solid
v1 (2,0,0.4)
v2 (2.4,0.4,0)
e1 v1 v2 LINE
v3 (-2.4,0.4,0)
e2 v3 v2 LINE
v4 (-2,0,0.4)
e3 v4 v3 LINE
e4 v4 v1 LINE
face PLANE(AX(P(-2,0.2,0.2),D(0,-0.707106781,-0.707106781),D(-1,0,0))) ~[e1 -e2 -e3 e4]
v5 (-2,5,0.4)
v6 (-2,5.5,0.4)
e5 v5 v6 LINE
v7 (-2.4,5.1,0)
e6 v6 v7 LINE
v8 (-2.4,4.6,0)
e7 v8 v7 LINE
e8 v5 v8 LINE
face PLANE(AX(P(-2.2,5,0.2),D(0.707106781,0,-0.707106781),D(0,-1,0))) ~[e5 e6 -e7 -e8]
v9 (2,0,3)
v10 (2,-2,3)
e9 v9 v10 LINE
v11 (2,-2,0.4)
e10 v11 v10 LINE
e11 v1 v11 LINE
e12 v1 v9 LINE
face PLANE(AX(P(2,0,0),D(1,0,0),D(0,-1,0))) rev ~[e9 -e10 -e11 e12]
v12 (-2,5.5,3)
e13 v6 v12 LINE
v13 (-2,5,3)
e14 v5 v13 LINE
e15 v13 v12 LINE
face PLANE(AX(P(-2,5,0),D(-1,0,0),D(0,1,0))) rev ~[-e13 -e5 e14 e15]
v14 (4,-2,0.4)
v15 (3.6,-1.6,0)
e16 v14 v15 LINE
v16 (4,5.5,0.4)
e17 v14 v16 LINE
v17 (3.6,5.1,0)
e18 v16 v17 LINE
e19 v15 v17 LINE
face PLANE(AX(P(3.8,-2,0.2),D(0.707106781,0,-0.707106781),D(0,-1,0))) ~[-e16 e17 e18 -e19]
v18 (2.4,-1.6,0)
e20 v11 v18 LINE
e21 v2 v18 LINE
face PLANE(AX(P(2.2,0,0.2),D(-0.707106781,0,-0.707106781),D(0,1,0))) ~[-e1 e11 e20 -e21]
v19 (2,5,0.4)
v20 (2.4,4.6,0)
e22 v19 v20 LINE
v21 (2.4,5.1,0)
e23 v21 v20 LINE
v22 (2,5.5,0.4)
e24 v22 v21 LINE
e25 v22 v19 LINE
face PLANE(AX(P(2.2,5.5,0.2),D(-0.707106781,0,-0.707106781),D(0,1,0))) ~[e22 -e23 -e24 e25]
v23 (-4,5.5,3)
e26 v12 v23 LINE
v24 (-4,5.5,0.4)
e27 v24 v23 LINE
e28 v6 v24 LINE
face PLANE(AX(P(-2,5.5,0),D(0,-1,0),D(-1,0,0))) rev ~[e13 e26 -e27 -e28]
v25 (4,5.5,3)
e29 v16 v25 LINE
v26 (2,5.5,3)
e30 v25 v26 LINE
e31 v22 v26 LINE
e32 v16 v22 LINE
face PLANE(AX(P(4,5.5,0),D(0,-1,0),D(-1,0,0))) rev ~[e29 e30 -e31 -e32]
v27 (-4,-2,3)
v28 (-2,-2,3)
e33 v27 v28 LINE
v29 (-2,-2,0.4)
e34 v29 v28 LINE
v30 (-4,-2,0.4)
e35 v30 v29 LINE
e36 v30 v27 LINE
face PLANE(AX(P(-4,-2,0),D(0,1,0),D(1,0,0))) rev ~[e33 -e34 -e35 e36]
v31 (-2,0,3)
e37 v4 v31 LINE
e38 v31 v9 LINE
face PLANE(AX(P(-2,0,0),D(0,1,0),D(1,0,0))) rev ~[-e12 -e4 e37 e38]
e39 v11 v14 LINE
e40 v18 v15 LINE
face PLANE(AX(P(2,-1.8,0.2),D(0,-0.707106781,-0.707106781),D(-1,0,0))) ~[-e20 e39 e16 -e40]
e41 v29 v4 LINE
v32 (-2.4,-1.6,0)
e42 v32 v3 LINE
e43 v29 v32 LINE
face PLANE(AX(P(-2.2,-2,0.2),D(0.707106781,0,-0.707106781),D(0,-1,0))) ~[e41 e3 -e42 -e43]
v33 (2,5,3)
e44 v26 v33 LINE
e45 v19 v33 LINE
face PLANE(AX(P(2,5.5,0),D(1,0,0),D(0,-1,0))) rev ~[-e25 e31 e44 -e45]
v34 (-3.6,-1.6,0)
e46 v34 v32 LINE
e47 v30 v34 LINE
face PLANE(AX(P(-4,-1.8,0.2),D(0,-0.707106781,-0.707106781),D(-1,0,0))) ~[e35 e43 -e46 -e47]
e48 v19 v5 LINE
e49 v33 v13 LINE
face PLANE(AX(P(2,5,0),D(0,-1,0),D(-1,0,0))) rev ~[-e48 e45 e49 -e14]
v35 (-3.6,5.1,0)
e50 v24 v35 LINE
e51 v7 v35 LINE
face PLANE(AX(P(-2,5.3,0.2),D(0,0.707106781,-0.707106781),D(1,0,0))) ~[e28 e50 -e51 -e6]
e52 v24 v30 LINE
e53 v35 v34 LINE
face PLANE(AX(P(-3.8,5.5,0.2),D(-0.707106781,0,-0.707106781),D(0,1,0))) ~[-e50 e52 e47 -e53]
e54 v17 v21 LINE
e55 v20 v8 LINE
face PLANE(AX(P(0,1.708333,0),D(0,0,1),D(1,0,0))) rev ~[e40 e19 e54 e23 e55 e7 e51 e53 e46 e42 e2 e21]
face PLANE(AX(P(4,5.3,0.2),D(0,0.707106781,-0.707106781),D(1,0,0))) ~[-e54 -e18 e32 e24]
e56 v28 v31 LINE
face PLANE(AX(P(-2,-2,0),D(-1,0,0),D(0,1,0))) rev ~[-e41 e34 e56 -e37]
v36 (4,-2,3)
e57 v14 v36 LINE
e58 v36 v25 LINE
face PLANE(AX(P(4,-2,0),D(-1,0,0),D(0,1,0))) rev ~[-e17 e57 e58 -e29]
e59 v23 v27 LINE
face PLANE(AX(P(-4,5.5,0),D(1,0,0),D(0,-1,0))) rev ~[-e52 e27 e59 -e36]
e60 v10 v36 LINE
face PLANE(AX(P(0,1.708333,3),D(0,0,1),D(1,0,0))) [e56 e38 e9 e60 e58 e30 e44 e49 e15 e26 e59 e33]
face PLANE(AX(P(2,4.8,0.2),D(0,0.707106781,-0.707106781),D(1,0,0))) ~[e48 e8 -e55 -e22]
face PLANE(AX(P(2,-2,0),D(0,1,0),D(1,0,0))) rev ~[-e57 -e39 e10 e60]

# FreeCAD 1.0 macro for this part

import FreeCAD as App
import Part
import Sketcher
from FreeCAD import Vector
Q = App.Units.Quantity


def edges_at(feature, points):
    """Names of the edges that pass closest to the given points."""
    edges = feature.Shape.Edges
    near = lambda p: min(range(len(edges)), key=lambda i: edges[i].distToShape(Part.Vertex(*p))[0])
    return sorted({f"Edge{near(p) + 1}" for p in points})

doc = App.newDocument("Part")
params = doc.addObject("Spreadsheet::Sheet", "Params")
for row, (alias, value) in enumerate([
    ("sketch1_width", "4 mm"),
    ("sketch1_width2", "2 mm"),
    ("sketch1_height", "7.5 mm"),
    ("sketch1_height2", "0.5 mm"),
    ("pad1_length", "3 mm"),
    ("chamfer_size", "0.4 mm"),
], start=1):
    params.set(f"A{row}", alias)
    params.set(f"B{row}", "=" + value)
    params.setAlias(f"B{row}", alias)

body = doc.addObject("PartDesign::Body", "Body")

# Sketch on XY plane
sketch1 = body.newObject("Sketcher::SketchObject", "Sketch")
sketch1.AttachmentSupport = (doc.getObject("XY_Plane"), [""])
sketch1.MapMode = "FlatFace"
sketch1.addGeometry([
    Part.LineSegment(Vector(-2, -2, 0), Vector(-2, 0, 0)),  # 0
    Part.LineSegment(Vector(-2, 0, 0), Vector(2, 0, 0)),  # 1
    Part.LineSegment(Vector(2, 0, 0), Vector(2, -2, 0)),  # 2
    Part.LineSegment(Vector(2, -2, 0), Vector(4, -2, 0)),  # 3
    Part.LineSegment(Vector(4, -2, 0), Vector(4, 5.5, 0)),  # 4
    Part.LineSegment(Vector(4, 5.5, 0), Vector(2, 5.5, 0)),  # 5
    Part.LineSegment(Vector(2, 5.5, 0), Vector(2, 5, 0)),  # 6
    Part.LineSegment(Vector(2, 5, 0), Vector(-2, 5, 0)),  # 7
    Part.LineSegment(Vector(-2, 5, 0), Vector(-2, 5.5, 0)),  # 8
    Part.LineSegment(Vector(-2, 5.5, 0), Vector(-4, 5.5, 0)),  # 9
    Part.LineSegment(Vector(-4, 5.5, 0), Vector(-4, -2, 0)),  # 10
    Part.LineSegment(Vector(-4, -2, 0), Vector(-2, -2, 0)),  # 11
], False)
sketch1.addConstraint([
    Sketcher.Constraint("Coincident", 0, 2, 1, 1),
    Sketcher.Constraint("Coincident", 1, 2, 2, 1),
    Sketcher.Constraint("Coincident", 2, 2, 3, 1),
    Sketcher.Constraint("Coincident", 3, 2, 4, 1),
    Sketcher.Constraint("Coincident", 4, 2, 5, 1),
    Sketcher.Constraint("Coincident", 5, 2, 6, 1),
    Sketcher.Constraint("Coincident", 6, 2, 7, 1),
    Sketcher.Constraint("Coincident", 7, 2, 8, 1),
    Sketcher.Constraint("Coincident", 8, 2, 9, 1),
    Sketcher.Constraint("Coincident", 9, 2, 10, 1),
    Sketcher.Constraint("Coincident", 10, 2, 11, 1),
    Sketcher.Constraint("Coincident", 11, 2, 0, 1),
    Sketcher.Constraint("Vertical", 0),
    Sketcher.Constraint("Horizontal", 1),
    Sketcher.Constraint("Vertical", 2),
    Sketcher.Constraint("Horizontal", 3),
    Sketcher.Constraint("Vertical", 4),
    Sketcher.Constraint("Horizontal", 5),
    Sketcher.Constraint("Vertical", 6),
    Sketcher.Constraint("Horizontal", 7),
    Sketcher.Constraint("Vertical", 8),
    Sketcher.Constraint("Horizontal", 9),
    Sketcher.Constraint("Vertical", 10),
    Sketcher.Constraint("Horizontal", 11),
    Sketcher.Constraint("Symmetric", 0, 2, 1, 2, -1, 1),
    Sketcher.Constraint("Symmetric", 5, 2, 8, 2, -2),
    Sketcher.Constraint("Symmetric", 3, 2, 10, 2, -2),
    Sketcher.Constraint("Vertical", 2, 2, 5, 2),
    Sketcher.Constraint("Equal", 11, 0),
    Sketcher.Constraint("DistanceX", 1, 1, 1, 2, Q("4 mm")),
    Sketcher.Constraint("DistanceX", 3, 1, 3, 2, Q("2 mm")),
    Sketcher.Constraint("DistanceY", 4, 1, 4, 2, Q("7.5 mm")),
    Sketcher.Constraint("DistanceY", 6, 2, 6, 1, Q("0.5 mm")),
])
sketch1.setExpression("Constraints[29]", "Params.sketch1_width")
sketch1.setExpression("Constraints[30]", "Params.sketch1_width2")
sketch1.setExpression("Constraints[31]", "Params.sketch1_height")
sketch1.setExpression("Constraints[32]", "Params.sketch1_height2")
pad1 = body.newObject("PartDesign::Pad", "Pad")
pad1.Profile = sketch1
pad1.setExpression("Length", "Params.pad1_length")
doc.recompute()

chamfer = body.newObject("PartDesign::Chamfer", "Chamfer")
chamfer.Base = (pad1, edges_at(pad1, [
    (-4, 1.75, 0),
    (-3, -2, 0),
    (-2, -1, 0),
    (0, 0, 0),
    (2, -1, 0),
    (3, -2, 0),
    (4, 1.75, 0),
    (3, 5.5, 0),
    (2, 5.25, 0),
    (0, 5, 0),
    (-2, 5.25, 0),
    (-3, 5.5, 0),
]))
chamfer.setExpression("Size", "Params.chamfer_size")

doc.recompute()
